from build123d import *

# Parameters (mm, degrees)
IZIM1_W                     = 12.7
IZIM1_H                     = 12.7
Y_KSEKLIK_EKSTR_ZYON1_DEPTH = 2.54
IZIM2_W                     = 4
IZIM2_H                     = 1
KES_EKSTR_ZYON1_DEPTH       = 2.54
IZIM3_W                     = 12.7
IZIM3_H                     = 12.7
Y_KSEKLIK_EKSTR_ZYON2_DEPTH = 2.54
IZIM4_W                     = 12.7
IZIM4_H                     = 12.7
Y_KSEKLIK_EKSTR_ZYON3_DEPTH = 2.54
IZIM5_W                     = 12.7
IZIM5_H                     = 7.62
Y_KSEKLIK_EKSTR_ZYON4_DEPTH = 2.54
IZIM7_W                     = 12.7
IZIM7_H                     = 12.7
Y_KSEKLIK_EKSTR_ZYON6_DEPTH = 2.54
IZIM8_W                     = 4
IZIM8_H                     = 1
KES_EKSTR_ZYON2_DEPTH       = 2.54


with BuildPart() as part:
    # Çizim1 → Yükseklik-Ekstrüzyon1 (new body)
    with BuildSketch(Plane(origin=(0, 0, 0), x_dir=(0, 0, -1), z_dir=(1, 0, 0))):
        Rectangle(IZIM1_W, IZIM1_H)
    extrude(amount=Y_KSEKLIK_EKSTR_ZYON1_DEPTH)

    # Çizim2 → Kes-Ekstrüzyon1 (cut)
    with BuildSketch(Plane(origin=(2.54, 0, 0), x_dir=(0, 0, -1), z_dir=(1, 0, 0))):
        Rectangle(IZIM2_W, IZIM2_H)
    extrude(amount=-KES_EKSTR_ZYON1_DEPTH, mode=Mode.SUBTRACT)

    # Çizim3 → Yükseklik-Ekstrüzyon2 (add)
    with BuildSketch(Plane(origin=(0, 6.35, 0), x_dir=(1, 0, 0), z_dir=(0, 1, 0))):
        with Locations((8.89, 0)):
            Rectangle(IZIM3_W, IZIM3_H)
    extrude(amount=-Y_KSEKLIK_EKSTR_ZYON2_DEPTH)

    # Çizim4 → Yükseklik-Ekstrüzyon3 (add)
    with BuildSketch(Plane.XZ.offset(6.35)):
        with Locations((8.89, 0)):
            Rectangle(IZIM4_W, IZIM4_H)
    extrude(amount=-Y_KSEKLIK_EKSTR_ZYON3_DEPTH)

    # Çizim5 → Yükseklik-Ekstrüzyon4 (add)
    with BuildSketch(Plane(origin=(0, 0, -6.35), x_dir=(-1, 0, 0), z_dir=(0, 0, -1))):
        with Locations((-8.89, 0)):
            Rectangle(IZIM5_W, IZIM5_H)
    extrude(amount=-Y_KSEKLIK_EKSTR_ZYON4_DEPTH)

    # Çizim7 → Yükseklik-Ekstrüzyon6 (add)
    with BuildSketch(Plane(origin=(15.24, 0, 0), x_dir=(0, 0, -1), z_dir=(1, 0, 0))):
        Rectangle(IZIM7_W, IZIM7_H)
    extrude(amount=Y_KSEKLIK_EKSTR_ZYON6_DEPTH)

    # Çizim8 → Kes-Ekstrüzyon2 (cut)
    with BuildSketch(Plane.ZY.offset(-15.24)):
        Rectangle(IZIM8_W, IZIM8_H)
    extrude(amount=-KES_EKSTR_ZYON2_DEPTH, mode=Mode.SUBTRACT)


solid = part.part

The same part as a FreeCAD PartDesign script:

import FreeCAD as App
import Part
import Sketcher
from FreeCAD import Vector
Q = App.Units.Quantity

doc = App.newDocument("Part")
body = doc.addObject("PartDesign::Body", "Body")

# Sketch on YZ plane
sketch1 = body.newObject("Sketcher::SketchObject", "Sketch")
sketch1.AttachmentSupport = (doc.getObject("YZ_Plane"), [""])
sketch1.MapMode = "FlatFace"
sketch1.addGeometry(Part.LineSegment(Vector(6, 6, 0), Vector(-6, 6, 0)), False)
sketch1.addGeometry(Part.LineSegment(Vector(-6, 6, 0), Vector(-6, -6, 0)), False)
sketch1.addGeometry(Part.LineSegment(Vector(-6, -6, 0), Vector(6, -6, 0)), False)
sketch1.addGeometry(Part.LineSegment(Vector(6, -6, 0), Vector(6, 6, 0)), False)
sketch1.addConstraint(Sketcher.Constraint("Coincident", 0, 2, 1, 1))
sketch1.addConstraint(Sketcher.Constraint("Coincident", 1, 2, 2, 1))
sketch1.addConstraint(Sketcher.Constraint("Coincident", 2, 2, 3, 1))
sketch1.addConstraint(Sketcher.Constraint("Coincident", 3, 2, 0, 1))
sketch1.addConstraint(Sketcher.Constraint("Horizontal", 0))
sketch1.addConstraint(Sketcher.Constraint("Vertical", 1))
sketch1.addConstraint(Sketcher.Constraint("Horizontal", 2))
sketch1.addConstraint(Sketcher.Constraint("Vertical", 3))
sketch1.addConstraint(Sketcher.Constraint("Symmetric", 0, 2, 2, 2, -1, 1))
sketch1.addConstraint(Sketcher.Constraint("Equal", 2, 1))
sketch1.addConstraint(Sketcher.Constraint("DistanceX", 0, 2, 0, 1, Q("0.5 in")))
pad1 = body.newObject("PartDesign::Pad", "Pad")
pad1.Profile = sketch1
pad1.Length = Q("0.1 in")

# Sketch on YZ plane
sketch2 = body.newObject("Sketcher::SketchObject", "Sketch001")
sketch2.AttachmentSupport = (doc.getObject("YZ_Plane"), [""])
sketch2.MapMode = "FlatFace"
sketch2.AttachmentOffset = App.Placement(Vector(0, 0, 0.1 * 25.4), App.Rotation())
sketch2.addGeometry(Part.LineSegment(Vector(0.5, 2, 0), Vector(-0.5, 2, 0)), False)
sketch2.addGeometry(Part.LineSegment(Vector(-0.5, 2, 0), Vector(-0.5, -2, 0)), False)
sketch2.addGeometry(Part.LineSegment(Vector(-0.5, -2, 0), Vector(0.5, -2, 0)), False)
sketch2.addGeometry(Part.LineSegment(Vector(0.5, -2, 0), Vector(0.5, 2, 0)), False)
sketch2.addConstraint(Sketcher.Constraint("Coincident", 0, 2, 1, 1))
sketch2.addConstraint(Sketcher.Constraint("Coincident", 1, 2, 2, 1))
sketch2.addConstraint(Sketcher.Constraint("Coincident", 2, 2, 3, 1))
sketch2.addConstraint(Sketcher.Constraint("Coincident", 3, 2, 0, 1))
sketch2.addConstraint(Sketcher.Constraint("Horizontal", 0))
sketch2.addConstraint(Sketcher.Constraint("Vertical", 1))
sketch2.addConstraint(Sketcher.Constraint("Horizontal", 2))
sketch2.addConstraint(Sketcher.Constraint("Vertical", 3))
sketch2.addConstraint(Sketcher.Constraint("Symmetric", 0, 2, 2, 2, -1, 1))
sketch2.addConstraint(Sketcher.Constraint("DistanceX", 0, 2, 0, 1, Q("1 mm")))
sketch2.addConstraint(Sketcher.Constraint("DistanceY", 1, 2, 1, 1, Q("4 mm")))
pocket1 = body.newObject("PartDesign::Pocket", "Pocket")
pocket1.Profile = sketch2
pocket1.Length = Q("0.1 in")

# Sketch on XZ plane
sketch3 = body.newObject("Sketcher::SketchObject", "Sketch002")
sketch3.AttachmentSupport = (doc.getObject("XZ_Plane"), [""])
sketch3.MapMode = "FlatFace"
sketch3.AttachmentOffset = App.Placement(Vector(0, 0, -0.25 * 25.4), App.Rotation())
sketch3.addGeometry(Part.LineSegment(Vector(3, -6, 0), Vector(3, 6, 0)), False)
sketch3.addGeometry(Part.LineSegment(Vector(3, 6, 0), Vector(15, 6, 0)), False)
sketch3.addGeometry(Part.LineSegment(Vector(15, 6, 0), Vector(15, -6, 0)), False)
sketch3.addGeometry(Part.LineSegment(Vector(15, -6, 0), Vector(3, -6, 0)), False)
sketch3.addConstraint(Sketcher.Constraint("Coincident", 0, 2, 1, 1))
sketch3.addConstraint(Sketcher.Constraint("Coincident", 1, 2, 2, 1))
sketch3.addConstraint(Sketcher.Constraint("Coincident", 2, 2, 3, 1))
sketch3.addConstraint(Sketcher.Constraint("Coincident", 3, 2, 0, 1))
sketch3.addConstraint(Sketcher.Constraint("Vertical", 0))
sketch3.addConstraint(Sketcher.Constraint("Horizontal", 1))
sketch3.addConstraint(Sketcher.Constraint("Vertical", 2))
sketch3.addConstraint(Sketcher.Constraint("Horizontal", 3))
sketch3.addConstraint(Sketcher.Constraint("Equal", 3, 0))
sketch3.addConstraint(Sketcher.Constraint("DistanceX", 1, 1, 1, 2, Q("0.5 in")))
sketch3.addConstraint(Sketcher.Constraint("DistanceX", -1, 1, 0, 2, Q("0.1 in")))
sketch3.addConstraint(Sketcher.Constraint("DistanceY", -1, 1, 0, 2, Q("0.25 in")))
pad2 = body.newObject("PartDesign::Pad", "Pad001")
pad2.Profile = sketch3
pad2.Length = Q("0.1 in")

# Sketch on XZ plane
sketch4 = body.newObject("Sketcher::SketchObject", "Sketch003")
sketch4.AttachmentSupport = (doc.getObject("XZ_Plane"), [""])
sketch4.MapMode = "FlatFace"
sketch4.AttachmentOffset = App.Placement(Vector(0, 0, 0.25 * 25.4), App.Rotation())
sketch4.addGeometry(Part.LineSegment(Vector(3, 6, 0), Vector(3, -6, 0)), False)
sketch4.addGeometry(Part.LineSegment(Vector(3, -6, 0), Vector(15, -6, 0)), False)
sketch4.addGeometry(Part.LineSegment(Vector(15, -6, 0), Vector(15, 6, 0)), False)
sketch4.addGeometry(Part.LineSegment(Vector(15, 6, 0), Vector(3, 6, 0)), False)
sketch4.addConstraint(Sketcher.Constraint("Coincident", 0, 2, 1, 1))
sketch4.addConstraint(Sketcher.Constraint("Coincident", 1, 2, 2, 1))
sketch4.addConstraint(Sketcher.Constraint("Coincident", 2, 2, 3, 1))
sketch4.addConstraint(Sketcher.Constraint("Coincident", 3, 2, 0, 1))
sketch4.addConstraint(Sketcher.Constraint("Vertical", 0))
sketch4.addConstraint(Sketcher.Constraint("Horizontal", 1))
sketch4.addConstraint(Sketcher.Constraint("Vertical", 2))
sketch4.addConstraint(Sketcher.Constraint("Horizontal", 3))
sketch4.addConstraint(Sketcher.Constraint("Equal", 3, 0))
sketch4.addConstraint(Sketcher.Constraint("DistanceX", 1, 1, 1, 2, Q("0.5 in")))
sketch4.addConstraint(Sketcher.Constraint("DistanceX", -1, 1, 0, 2, Q("0.1 in")))
sketch4.addConstraint(Sketcher.Constraint("DistanceY", 0, 2, -1, 1, Q("0.25 in")))
pad3 = body.newObject("PartDesign::Pad", "Pad002")
pad3.Profile = sketch4
pad3.Length = Q("0.1 in")
pad3.Reversed = True

# Sketch on XY plane
sketch5 = body.newObject("Sketcher::SketchObject", "Sketch004")
sketch5.AttachmentSupport = (doc.getObject("XY_Plane"), [""])
sketch5.MapMode = "FlatFace"
sketch5.AttachmentOffset = App.Placement(Vector(0, 0, -0.25 * 25.4), App.Rotation())
sketch5.addGeometry(Part.LineSegment(Vector(15, 4, 0), Vector(15, -4, 0)), False)
sketch5.addGeometry(Part.LineSegment(Vector(15, -4, 0), Vector(3, -4, 0)), False)
sketch5.addGeometry(Part.LineSegment(Vector(3, -4, 0), Vector(3, 4, 0)), False)
sketch5.addGeometry(Part.LineSegment(Vector(3, 4, 0), Vector(15, 4, 0)), False)
sketch5.addConstraint(Sketcher.Constraint("Coincident", 0, 2, 1, 1))
sketch5.addConstraint(Sketcher.Constraint("Coincident", 1, 2, 2, 1))
sketch5.addConstraint(Sketcher.Constraint("Coincident", 2, 2, 3, 1))
sketch5.addConstraint(Sketcher.Constraint("Coincident", 3, 2, 0, 1))
sketch5.addConstraint(Sketcher.Constraint("Vertical", 0))
sketch5.addConstraint(Sketcher.Constraint("Horizontal", 1))
sketch5.addConstraint(Sketcher.Constraint("Vertical", 2))
sketch5.addConstraint(Sketcher.Constraint("Horizontal", 3))
sketch5.addConstraint(Sketcher.Constraint("DistanceX", 1, 2, 1, 1, Q("0.5 in")))
sketch5.addConstraint(Sketcher.Constraint("DistanceY", 0, 2, 0, 1, Q("0.3 in")))
sketch5.addConstraint(Sketcher.Constraint("DistanceX", -1, 1, 0, 2, Q("0.6 in")))
sketch5.addConstraint(Sketcher.Constraint("DistanceY", 0, 2, -1, 1, Q("0.15 in")))
pad4 = body.newObject("PartDesign::Pad", "Pad003")
pad4.Profile = sketch5
pad4.Length = Q("0.1 in")

# Sketch on YZ plane
sketch6 = body.newObject("Sketcher::SketchObject", "Sketch005")
sketch6.AttachmentSupport = (doc.getObject("YZ_Plane"), [""])
sketch6.MapMode = "FlatFace"
sketch6.AttachmentOffset = App.Placement(Vector(0, 0, 0.6 * 25.4), App.Rotation())
sketch6.addGeometry(Part.LineSegment(Vector(6, 6, 0), Vector(-6, 6, 0)), False)
sketch6.addGeometry(Part.LineSegment(Vector(-6, 6, 0), Vector(-6, -6, 0)), False)
sketch6.addGeometry(Part.LineSegment(Vector(-6, -6, 0), Vector(6, -6, 0)), False)
sketch6.addGeometry(Part.LineSegment(Vector(6, -6, 0), Vector(6, 6, 0)), False)
sketch6.addConstraint(Sketcher.Constraint("Coincident", 0, 2, 1, 1))
sketch6.addConstraint(Sketcher.Constraint("Coincident", 1, 2, 2, 1))
sketch6.addConstraint(Sketcher.Constraint("Coincident", 2, 2, 3, 1))
sketch6.addConstraint(Sketcher.Constraint("Coincident", 3, 2, 0, 1))
sketch6.addConstraint(Sketcher.Constraint("Horizontal", 0))
sketch6.addConstraint(Sketcher.Constraint("Vertical", 1))
sketch6.addConstraint(Sketcher.Constraint("Horizontal", 2))
sketch6.addConstraint(Sketcher.Constraint("Vertical", 3))
sketch6.addConstraint(Sketcher.Constraint("Symmetric", 0, 2, 2, 2, -1, 1))
sketch6.addConstraint(Sketcher.Constraint("Equal", 2, 1))
sketch6.addConstraint(Sketcher.Constraint("DistanceX", 0, 2, 0, 1, Q("0.5 in")))
pad5 = body.newObject("PartDesign::Pad", "Pad004")
pad5.Profile = sketch6
pad5.Length = Q("0.1 in")

# Sketch on YZ plane
sketch7 = body.newObject("Sketcher::SketchObject", "Sketch006")
sketch7.AttachmentSupport = (doc.getObject("YZ_Plane"), [""])
sketch7.MapMode = "FlatFace"
sketch7.AttachmentOffset = App.Placement(Vector(0, 0, 0.6 * 25.4), App.Rotation())
sketch7.addGeometry(Part.LineSegment(Vector(0.5, -2, 0), Vector(-0.5, -2, 0)), False)
sketch7.addGeometry(Part.LineSegment(Vector(-0.5, -2, 0), Vector(-0.5, 2, 0)), False)
sketch7.addGeometry(Part.LineSegment(Vector(-0.5, 2, 0), Vector(0.5, 2, 0)), False)
sketch7.addGeometry(Part.LineSegment(Vector(0.5, 2, 0), Vector(0.5, -2, 0)), False)
sketch7.addConstraint(Sketcher.Constraint("Coincident", 0, 2, 1, 1))
sketch7.addConstraint(Sketcher.Constraint("Coincident", 1, 2, 2, 1))
sketch7.addConstraint(Sketcher.Constraint("Coincident", 2, 2, 3, 1))
sketch7.addConstraint(Sketcher.Constraint("Coincident", 3, 2, 0, 1))
sketch7.addConstraint(Sketcher.Constraint("Horizontal", 0))
sketch7.addConstraint(Sketcher.Constraint("Vertical", 1))
sketch7.addConstraint(Sketcher.Constraint("Horizontal", 2))
sketch7.addConstraint(Sketcher.Constraint("Vertical", 3))
sketch7.addConstraint(Sketcher.Constraint("Symmetric", 0, 2, 2, 2, -1, 1))
sketch7.addConstraint(Sketcher.Constraint("DistanceX", 0, 2, 0, 1, Q("1 mm")))
sketch7.addConstraint(Sketcher.Constraint("DistanceY", 1, 1, 1, 2, Q("4 mm")))
pocket2 = body.newObject("PartDesign::Pocket", "Pocket001")
pocket2.Profile = sketch7
pocket2.Length = Q("0.1 in")
pocket2.Reversed = True

doc.recompute()
